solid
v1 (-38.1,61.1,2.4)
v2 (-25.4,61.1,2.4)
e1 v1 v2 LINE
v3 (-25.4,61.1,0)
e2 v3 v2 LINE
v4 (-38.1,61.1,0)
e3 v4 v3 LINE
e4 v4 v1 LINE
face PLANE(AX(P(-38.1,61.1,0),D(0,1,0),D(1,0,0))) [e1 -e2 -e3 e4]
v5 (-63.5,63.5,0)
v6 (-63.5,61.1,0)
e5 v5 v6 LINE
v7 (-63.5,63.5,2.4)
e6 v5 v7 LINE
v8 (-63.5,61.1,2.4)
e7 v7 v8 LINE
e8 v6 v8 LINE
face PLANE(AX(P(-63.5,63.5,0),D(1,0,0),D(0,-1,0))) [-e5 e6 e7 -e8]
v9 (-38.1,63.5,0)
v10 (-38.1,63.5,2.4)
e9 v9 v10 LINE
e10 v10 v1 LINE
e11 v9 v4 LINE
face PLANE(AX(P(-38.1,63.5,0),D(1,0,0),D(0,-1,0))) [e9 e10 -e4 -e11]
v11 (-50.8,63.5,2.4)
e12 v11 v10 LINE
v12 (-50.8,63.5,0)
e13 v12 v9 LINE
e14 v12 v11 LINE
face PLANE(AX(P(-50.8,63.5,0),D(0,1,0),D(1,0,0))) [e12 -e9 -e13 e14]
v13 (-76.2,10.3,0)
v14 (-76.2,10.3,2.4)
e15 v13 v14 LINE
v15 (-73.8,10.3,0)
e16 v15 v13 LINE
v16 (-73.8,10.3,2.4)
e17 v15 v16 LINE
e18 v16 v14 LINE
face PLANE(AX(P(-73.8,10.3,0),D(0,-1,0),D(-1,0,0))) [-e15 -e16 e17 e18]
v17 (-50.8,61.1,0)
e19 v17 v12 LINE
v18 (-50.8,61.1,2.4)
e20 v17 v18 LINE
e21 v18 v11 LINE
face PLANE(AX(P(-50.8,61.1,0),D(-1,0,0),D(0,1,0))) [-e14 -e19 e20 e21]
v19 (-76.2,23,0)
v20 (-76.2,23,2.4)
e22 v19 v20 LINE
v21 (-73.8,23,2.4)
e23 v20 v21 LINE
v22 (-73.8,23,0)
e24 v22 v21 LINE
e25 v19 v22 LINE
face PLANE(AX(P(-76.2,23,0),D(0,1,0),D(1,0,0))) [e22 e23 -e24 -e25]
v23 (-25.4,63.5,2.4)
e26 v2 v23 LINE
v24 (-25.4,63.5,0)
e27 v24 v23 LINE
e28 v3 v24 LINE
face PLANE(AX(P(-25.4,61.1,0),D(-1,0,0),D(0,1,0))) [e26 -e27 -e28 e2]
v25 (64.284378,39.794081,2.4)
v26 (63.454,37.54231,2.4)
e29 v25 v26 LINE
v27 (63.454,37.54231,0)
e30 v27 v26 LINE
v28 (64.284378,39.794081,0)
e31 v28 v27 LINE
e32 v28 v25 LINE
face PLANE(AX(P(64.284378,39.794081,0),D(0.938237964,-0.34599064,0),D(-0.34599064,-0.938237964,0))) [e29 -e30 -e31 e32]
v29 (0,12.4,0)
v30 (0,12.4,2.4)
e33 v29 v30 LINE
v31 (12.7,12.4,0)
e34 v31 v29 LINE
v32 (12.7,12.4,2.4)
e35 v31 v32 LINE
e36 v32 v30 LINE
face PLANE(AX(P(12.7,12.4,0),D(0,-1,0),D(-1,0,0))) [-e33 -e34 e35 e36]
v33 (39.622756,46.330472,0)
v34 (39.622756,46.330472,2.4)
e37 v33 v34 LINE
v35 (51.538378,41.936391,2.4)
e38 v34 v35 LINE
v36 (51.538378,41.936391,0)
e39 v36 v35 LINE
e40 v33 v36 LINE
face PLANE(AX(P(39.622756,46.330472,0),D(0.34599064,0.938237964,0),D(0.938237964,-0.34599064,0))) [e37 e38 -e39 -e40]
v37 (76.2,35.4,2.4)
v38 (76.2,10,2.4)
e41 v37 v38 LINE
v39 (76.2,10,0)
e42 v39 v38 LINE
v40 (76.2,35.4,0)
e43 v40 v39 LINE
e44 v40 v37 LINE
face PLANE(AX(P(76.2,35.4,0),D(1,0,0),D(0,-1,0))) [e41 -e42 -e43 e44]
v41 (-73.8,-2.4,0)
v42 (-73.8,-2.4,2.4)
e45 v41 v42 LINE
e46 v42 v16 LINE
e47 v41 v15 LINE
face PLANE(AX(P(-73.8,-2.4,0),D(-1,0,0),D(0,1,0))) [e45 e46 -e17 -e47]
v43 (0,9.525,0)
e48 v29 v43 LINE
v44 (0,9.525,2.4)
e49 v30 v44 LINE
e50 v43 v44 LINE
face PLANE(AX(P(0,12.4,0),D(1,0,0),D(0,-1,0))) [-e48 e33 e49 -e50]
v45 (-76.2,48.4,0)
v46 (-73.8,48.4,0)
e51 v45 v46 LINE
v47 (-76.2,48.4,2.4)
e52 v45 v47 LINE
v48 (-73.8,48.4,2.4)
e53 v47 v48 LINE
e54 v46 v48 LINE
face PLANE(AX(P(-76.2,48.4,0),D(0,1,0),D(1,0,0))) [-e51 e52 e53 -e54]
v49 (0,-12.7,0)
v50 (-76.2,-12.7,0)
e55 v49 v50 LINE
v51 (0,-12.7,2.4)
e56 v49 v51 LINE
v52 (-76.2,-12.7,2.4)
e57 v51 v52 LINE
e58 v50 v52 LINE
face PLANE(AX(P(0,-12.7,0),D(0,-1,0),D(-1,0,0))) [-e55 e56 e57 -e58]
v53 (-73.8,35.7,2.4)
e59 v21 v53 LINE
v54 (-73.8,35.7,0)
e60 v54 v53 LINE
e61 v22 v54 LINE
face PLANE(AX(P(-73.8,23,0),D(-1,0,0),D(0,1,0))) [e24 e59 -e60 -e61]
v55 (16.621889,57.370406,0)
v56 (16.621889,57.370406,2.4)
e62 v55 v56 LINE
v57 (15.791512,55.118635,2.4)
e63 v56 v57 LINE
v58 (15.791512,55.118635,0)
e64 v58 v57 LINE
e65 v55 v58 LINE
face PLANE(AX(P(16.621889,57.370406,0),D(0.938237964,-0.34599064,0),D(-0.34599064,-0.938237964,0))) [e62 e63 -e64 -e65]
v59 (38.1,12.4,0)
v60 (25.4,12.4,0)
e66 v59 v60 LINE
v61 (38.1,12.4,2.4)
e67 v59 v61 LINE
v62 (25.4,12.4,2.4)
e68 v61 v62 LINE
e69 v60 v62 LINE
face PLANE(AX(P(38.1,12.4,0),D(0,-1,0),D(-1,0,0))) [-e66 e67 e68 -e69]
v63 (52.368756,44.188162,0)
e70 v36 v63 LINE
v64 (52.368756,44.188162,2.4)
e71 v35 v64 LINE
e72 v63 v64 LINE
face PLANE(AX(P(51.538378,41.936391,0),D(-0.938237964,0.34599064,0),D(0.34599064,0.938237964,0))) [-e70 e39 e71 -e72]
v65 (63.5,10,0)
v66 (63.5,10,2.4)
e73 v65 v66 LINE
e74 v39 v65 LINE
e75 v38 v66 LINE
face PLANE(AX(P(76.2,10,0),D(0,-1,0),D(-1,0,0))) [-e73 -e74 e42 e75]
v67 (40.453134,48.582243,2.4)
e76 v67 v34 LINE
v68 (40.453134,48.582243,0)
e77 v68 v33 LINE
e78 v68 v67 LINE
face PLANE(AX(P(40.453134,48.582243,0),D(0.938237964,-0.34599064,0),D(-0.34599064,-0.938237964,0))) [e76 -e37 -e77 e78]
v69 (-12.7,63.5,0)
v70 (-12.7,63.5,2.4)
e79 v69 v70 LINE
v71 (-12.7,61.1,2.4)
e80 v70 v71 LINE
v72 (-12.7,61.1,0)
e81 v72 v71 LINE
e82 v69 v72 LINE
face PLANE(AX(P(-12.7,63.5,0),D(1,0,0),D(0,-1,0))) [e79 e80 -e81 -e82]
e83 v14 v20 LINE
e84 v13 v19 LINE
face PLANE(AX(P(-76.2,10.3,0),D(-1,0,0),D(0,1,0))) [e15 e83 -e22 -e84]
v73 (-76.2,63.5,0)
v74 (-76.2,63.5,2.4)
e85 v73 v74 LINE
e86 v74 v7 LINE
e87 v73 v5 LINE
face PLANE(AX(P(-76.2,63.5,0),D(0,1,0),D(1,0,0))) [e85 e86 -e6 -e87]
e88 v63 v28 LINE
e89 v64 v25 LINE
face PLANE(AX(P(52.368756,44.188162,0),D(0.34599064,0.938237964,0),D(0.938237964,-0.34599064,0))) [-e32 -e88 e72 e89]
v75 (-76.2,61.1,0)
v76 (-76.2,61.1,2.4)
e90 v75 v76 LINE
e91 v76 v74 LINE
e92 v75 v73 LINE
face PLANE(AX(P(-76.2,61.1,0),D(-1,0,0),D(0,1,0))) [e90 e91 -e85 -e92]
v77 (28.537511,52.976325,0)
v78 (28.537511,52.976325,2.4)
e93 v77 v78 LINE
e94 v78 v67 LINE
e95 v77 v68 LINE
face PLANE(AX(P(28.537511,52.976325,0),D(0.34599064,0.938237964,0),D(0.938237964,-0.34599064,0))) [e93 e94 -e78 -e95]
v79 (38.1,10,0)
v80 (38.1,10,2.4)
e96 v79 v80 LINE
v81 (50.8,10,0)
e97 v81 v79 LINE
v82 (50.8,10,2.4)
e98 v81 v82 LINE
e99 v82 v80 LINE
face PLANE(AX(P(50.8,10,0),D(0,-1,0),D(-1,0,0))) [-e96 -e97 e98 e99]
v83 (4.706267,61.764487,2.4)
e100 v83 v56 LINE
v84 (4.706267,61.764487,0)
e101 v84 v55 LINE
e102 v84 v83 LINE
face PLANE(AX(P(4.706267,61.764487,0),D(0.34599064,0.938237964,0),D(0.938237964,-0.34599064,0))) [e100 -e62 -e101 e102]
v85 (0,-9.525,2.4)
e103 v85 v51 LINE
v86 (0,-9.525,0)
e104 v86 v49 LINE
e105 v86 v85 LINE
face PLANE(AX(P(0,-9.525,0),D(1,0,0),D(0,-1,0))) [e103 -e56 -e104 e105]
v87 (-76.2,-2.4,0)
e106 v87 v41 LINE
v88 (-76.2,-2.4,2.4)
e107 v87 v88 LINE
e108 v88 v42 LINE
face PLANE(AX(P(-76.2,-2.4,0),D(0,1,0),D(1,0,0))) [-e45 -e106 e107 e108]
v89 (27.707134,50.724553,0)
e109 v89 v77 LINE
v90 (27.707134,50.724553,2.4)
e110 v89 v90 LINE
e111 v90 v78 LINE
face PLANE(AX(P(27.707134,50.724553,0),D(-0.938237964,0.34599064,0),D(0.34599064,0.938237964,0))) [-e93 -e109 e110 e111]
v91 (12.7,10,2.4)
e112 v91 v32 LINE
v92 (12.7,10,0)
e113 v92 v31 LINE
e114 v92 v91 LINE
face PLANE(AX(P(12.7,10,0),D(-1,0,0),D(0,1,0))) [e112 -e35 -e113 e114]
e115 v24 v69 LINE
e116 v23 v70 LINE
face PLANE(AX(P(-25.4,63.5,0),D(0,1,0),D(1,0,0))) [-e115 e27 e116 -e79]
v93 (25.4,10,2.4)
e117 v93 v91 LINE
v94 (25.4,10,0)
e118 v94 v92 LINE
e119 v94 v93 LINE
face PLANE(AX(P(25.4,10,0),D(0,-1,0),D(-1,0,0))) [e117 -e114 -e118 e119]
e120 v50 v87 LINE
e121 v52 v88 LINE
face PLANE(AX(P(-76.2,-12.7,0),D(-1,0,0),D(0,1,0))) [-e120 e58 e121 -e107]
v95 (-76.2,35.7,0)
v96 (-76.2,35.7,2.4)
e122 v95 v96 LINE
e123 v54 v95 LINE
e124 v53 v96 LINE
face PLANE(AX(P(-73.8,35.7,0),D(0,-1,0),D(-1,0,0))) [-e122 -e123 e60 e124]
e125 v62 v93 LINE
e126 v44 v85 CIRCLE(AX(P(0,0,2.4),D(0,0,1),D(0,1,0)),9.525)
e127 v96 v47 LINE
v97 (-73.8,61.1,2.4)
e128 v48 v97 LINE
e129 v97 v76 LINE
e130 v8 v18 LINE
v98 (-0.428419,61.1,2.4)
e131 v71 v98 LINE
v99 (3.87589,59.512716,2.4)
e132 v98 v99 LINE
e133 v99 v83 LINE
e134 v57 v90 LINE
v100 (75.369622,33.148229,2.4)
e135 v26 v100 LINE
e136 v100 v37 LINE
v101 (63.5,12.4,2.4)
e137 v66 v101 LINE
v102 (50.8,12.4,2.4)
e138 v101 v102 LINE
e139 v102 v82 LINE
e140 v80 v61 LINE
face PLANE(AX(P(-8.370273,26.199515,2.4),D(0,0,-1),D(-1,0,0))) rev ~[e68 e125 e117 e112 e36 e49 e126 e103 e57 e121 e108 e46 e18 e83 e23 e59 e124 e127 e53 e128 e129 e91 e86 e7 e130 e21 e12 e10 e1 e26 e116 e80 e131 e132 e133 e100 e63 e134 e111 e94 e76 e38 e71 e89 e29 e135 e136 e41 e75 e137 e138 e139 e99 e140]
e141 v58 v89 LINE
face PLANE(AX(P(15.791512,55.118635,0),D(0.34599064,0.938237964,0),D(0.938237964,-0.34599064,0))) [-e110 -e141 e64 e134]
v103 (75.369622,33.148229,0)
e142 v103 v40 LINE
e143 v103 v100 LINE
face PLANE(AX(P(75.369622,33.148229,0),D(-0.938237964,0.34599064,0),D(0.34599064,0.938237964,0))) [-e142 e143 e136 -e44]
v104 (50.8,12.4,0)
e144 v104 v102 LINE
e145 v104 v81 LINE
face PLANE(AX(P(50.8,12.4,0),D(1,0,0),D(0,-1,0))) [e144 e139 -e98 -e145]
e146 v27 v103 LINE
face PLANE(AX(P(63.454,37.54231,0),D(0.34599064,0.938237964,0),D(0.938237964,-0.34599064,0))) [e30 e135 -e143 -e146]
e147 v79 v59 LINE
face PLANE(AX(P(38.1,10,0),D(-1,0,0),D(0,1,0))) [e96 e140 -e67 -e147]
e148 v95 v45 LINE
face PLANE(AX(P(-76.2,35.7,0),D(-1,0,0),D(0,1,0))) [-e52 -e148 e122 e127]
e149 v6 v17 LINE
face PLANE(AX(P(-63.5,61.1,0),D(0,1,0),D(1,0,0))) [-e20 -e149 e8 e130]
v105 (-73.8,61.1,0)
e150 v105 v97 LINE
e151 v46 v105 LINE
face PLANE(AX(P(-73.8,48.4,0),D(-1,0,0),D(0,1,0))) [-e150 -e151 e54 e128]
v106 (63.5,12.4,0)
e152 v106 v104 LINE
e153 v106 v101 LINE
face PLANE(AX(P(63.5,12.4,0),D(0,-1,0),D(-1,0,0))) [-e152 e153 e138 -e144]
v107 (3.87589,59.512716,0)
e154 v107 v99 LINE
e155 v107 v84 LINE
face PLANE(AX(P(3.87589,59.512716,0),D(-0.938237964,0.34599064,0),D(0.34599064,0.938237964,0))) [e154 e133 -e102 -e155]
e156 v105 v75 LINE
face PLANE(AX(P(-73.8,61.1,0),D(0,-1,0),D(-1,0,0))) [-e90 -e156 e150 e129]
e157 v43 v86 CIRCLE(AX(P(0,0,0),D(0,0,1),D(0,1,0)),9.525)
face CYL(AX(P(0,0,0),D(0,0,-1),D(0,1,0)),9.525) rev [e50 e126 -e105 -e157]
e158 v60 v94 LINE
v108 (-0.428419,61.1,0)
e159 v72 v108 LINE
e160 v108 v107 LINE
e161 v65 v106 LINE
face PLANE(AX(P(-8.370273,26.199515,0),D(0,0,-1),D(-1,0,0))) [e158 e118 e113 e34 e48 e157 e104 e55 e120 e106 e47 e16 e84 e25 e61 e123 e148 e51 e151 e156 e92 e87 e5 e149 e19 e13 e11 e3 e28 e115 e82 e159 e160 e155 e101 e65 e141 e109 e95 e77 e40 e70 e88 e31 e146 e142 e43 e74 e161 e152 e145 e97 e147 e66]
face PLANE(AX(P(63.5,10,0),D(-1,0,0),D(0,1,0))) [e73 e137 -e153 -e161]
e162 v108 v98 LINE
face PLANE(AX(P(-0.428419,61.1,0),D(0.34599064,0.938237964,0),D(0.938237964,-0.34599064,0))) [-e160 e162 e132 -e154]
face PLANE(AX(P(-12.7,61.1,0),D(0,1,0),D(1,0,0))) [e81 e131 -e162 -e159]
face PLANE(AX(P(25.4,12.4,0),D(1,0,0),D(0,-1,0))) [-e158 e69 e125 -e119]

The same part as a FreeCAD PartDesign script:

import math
import FreeCAD as App
import Part
import Sketcher

V = App.Vector
Q = App.Units.Quantity

doc = App.newDocument("Part")
body = doc.addObject("PartDesign::Body", "Body")

# Sketch on XY plane
sketch1 = body.newObject("Sketcher::SketchObject", "Sketch")
sketch1.AttachmentSupport = (doc.getObject("XY_Plane"), [""])
sketch1.MapMode = "FlatFace"
sketch1.addGeometry([
    Part.LineSegment(V(-76.2, -2.4, 0), V(-76.2, -12.7, 0)),  # 0
    Part.LineSegment(V(-76.2, -12.7, 0), V(0, -12.7, 0)),  # 1
    Part.LineSegment(V(0, -12.7, 0), V(0, -9.5, 0)),  # 2
    Part.ArcOfCircle(Part.Circle(V(0, 0, 0), V(0, 0, 1), 9.5), math.radians(90), math.radians(270)),  # 3
    Part.LineSegment(V(0, 9.5, 0), V(0, 12.4, 0)),  # 4
    Part.LineSegment(V(0, 12.4, 0), V(12.7, 12.4, 0)),  # 5
    Part.LineSegment(V(12.7, 12.4, 0), V(12.7, 10, 0)),  # 6
    Part.LineSegment(V(12.7, 10, 0), V(25.4, 10, 0)),  # 7
    Part.LineSegment(V(25.4, 10, 0), V(25.4, 12.4, 0)),  # 8
    Part.LineSegment(V(25.4, 12.4, 0), V(38.1, 12.4, 0)),  # 9
    Part.LineSegment(V(38.1, 12.4, 0), V(38.1, 10, 0)),  # 10
    Part.LineSegment(V(38.1, 10, 0), V(50.8, 10, 0)),  # 11
    Part.LineSegment(V(50.8, 10, 0), V(50.8, 12.4, 0)),  # 12
    Part.LineSegment(V(50.8, 12.4, 0), V(63.5, 12.4, 0)),  # 13
    Part.LineSegment(V(63.5, 12.4, 0), V(63.5, 10, 0)),  # 14
    Part.LineSegment(V(63.5, 10, 0), V(76.2, 10, 0)),  # 15
    Part.LineSegment(V(76.2, 10, 0), V(76.2, 35.4, 0)),  # 16
    Part.LineSegment(V(76.2, 35.4, 0), V(75.4, 33.1, 0)),  # 17
    Part.LineSegment(V(75.4, 33.1, 0), V(63.5, 37.5, 0)),  # 18
    Part.LineSegment(V(63.5, 37.5, 0), V(64.3, 39.8, 0)),  # 19
    Part.LineSegment(V(64.3, 39.8, 0), V(52.4, 44.2, 0)),  # 20
    Part.LineSegment(V(52.4, 44.2, 0), V(51.5, 41.9, 0)),  # 21
    Part.LineSegment(V(51.5, 41.9, 0), V(39.6, 46.3, 0)),  # 22
    Part.LineSegment(V(39.6, 46.3, 0), V(40.5, 48.6, 0)),  # 23
    Part.LineSegment(V(40.5, 48.6, 0), V(28.5, 53, 0)),  # 24
    Part.LineSegment(V(28.5, 53, 0), V(27.7, 50.7, 0)),  # 25
    Part.LineSegment(V(27.7, 50.7, 0), V(15.8, 55.1, 0)),  # 26
    Part.LineSegment(V(15.8, 55.1, 0), V(16.6, 57.4, 0)),  # 27
    Part.LineSegment(V(16.6, 57.4, 0), V(4.7, 61.8, 0)),  # 28
    Part.LineSegment(V(4.7, 61.8, 0), V(3.9, 59.5, 0)),  # 29
    Part.LineSegment(V(3.9, 59.5, 0), V(-0.4, 61.1, 0)),  # 30
    Part.LineSegment(V(-0.4, 61.1, 0), V(-12.7, 61.1, 0)),  # 31
    Part.LineSegment(V(-12.7, 61.1, 0), V(-12.7, 63.5, 0)),  # 32
    Part.LineSegment(V(-12.7, 63.5, 0), V(-25.4, 63.5, 0)),  # 33
    Part.LineSegment(V(-25.4, 63.5, 0), V(-25.4, 61.1, 0)),  # 34
    Part.LineSegment(V(-25.4, 61.1, 0), V(-38.1, 61.1, 0)),  # 35
    Part.LineSegment(V(-38.1, 61.1, 0), V(-38.1, 63.5, 0)),  # 36
    Part.LineSegment(V(-38.1, 63.5, 0), V(-50.8, 63.5, 0)),  # 37
    Part.LineSegment(V(-50.8, 63.5, 0), V(-50.8, 61.1, 0)),  # 38
    Part.LineSegment(V(-50.8, 61.1, 0), V(-63.5, 61.1, 0)),  # 39
    Part.LineSegment(V(-63.5, 61.1, 0), V(-63.5, 63.5, 0)),  # 40
    Part.LineSegment(V(-63.5, 63.5, 0), V(-76.2, 63.5, 0)),  # 41
    Part.LineSegment(V(-76.2, 63.5, 0), V(-76.2, 61.1, 0)),  # 42
    Part.LineSegment(V(-76.2, 61.1, 0), V(-73.8, 61.1, 0)),  # 43
    Part.LineSegment(V(-73.8, 61.1, 0), V(-73.8, 48.4, 0)),  # 44
    Part.LineSegment(V(-73.8, 48.4, 0), V(-76.2, 48.4, 0)),  # 45
    Part.LineSegment(V(-76.2, 48.4, 0), V(-76.2, 35.7, 0)),  # 46
    Part.LineSegment(V(-76.2, 35.7, 0), V(-73.8, 35.7, 0)),  # 47
    Part.LineSegment(V(-73.8, 35.7, 0), V(-73.8, 23, 0)),  # 48
    Part.LineSegment(V(-73.8, 23, 0), V(-76.2, 23, 0)),  # 49
    Part.LineSegment(V(-76.2, 23, 0), V(-76.2, 10.3, 0)),  # 50
    Part.LineSegment(V(-76.2, 10.3, 0), V(-73.8, 10.3, 0)),  # 51
    Part.LineSegment(V(-73.8, 10.3, 0), V(-73.8, -2.4, 0)),  # 52
    Part.LineSegment(V(-73.8, -2.4, 0), V(-76.2, -2.4, 0)),  # 53
], False)
sketch1.addConstraint([
    Sketcher.Constraint("Coincident", 0, 2, 1, 1),
    Sketcher.Constraint("Coincident", 1, 2, 2, 1),
    Sketcher.Constraint("Coincident", 2, 2, 3, 2),
    Sketcher.Constraint("Coincident", 3, 1, 4, 1),
    Sketcher.Constraint("Coincident", 4, 2, 5, 1),
    Sketcher.Constraint("Coincident", 5, 2, 6, 1),
    Sketcher.Constraint("Coincident", 6, 2, 7, 1),
    Sketcher.Constraint("Coincident", 7, 2, 8, 1),
    Sketcher.Constraint("Coincident", 8, 2, 9, 1),
    Sketcher.Constraint("Coincident", 9, 2, 10, 1),
    Sketcher.Constraint("Coincident", 10, 2, 11, 1),
    Sketcher.Constraint("Coincident", 11, 2, 12, 1),
    Sketcher.Constraint("Coincident", 12, 2, 13, 1),
    Sketcher.Constraint("Coincident", 13, 2, 14, 1),
    Sketcher.Constraint("Coincident", 14, 2, 15, 1),
    Sketcher.Constraint("Coincident", 15, 2, 16, 1),
    Sketcher.Constraint("Coincident", 16, 2, 17, 1),
    Sketcher.Constraint("Coincident", 17, 2, 18, 1),
    Sketcher.Constraint("Coincident", 18, 2, 19, 1),
    Sketcher.Constraint("Coincident", 19, 2, 20, 1),
    Sketcher.Constraint("Coincident", 20, 2, 21, 1),
    Sketcher.Constraint("Coincident", 21, 2, 22, 1),
    Sketcher.Constraint("Coincident", 22, 2, 23, 1),
    Sketcher.Constraint("Coincident", 23, 2, 24, 1),
    Sketcher.Constraint("Coincident", 24, 2, 25, 1),
    Sketcher.Constraint("Coincident", 25, 2, 26, 1),
    Sketcher.Constraint("Coincident", 26, 2, 27, 1),
    Sketcher.Constraint("Coincident", 27, 2, 28, 1),
    Sketcher.Constraint("Coincident", 28, 2, 29, 1),
    Sketcher.Constraint("Coincident", 29, 2, 30, 1),
    Sketcher.Constraint("Coincident", 30, 2, 31, 1),
    Sketcher.Constraint("Coincident", 31, 2, 32, 1),
    Sketcher.Constraint("Coincident", 32, 2, 33, 1),
    Sketcher.Constraint("Coincident", 33, 2, 34, 1),
    Sketcher.Constraint("Coincident", 34, 2, 35, 1),
    Sketcher.Constraint("Coincident", 35, 2, 36, 1),
    Sketcher.Constraint("Coincident", 36, 2, 37, 1),
    Sketcher.Constraint("Coincident", 37, 2, 38, 1),
    Sketcher.Constraint("Coincident", 38, 2, 39, 1),
    Sketcher.Constraint("Coincident", 39, 2, 40, 1),
    Sketcher.Constraint("Coincident", 40, 2, 41, 1),
    Sketcher.Constraint("Coincident", 41, 2, 42, 1),
    Sketcher.Constraint("Coincident", 42, 2, 43, 1),
    Sketcher.Constraint("Coincident", 43, 2, 44, 1),
    Sketcher.Constraint("Coincident", 44, 2, 45, 1),
    Sketcher.Constraint("Coincident", 45, 2, 46, 1),
    Sketcher.Constraint("Coincident", 46, 2, 47, 1),
    Sketcher.Constraint("Coincident", 47, 2, 48, 1),
    Sketcher.Constraint("Coincident", 48, 2, 49, 1),
    Sketcher.Constraint("Coincident", 49, 2, 50, 1),
    Sketcher.Constraint("Coincident", 50, 2, 51, 1),
    Sketcher.Constraint("Coincident", 51, 2, 52, 1),
    Sketcher.Constraint("Coincident", 52, 2, 53, 1),
    Sketcher.Constraint("Coincident", 53, 2, 0, 1),
    Sketcher.Constraint("Vertical", 0),
    Sketcher.Constraint("Horizontal", 1),
    Sketcher.Constraint("Vertical", 2),
    Sketcher.Constraint("Vertical", 4),
    Sketcher.Constraint("Horizontal", 5),
    Sketcher.Constraint("Vertical", 6),
    Sketcher.Constraint("Horizontal", 7),
    Sketcher.Constraint("Vertical", 8),
    Sketcher.Constraint("Horizontal", 9),
    Sketcher.Constraint("Vertical", 10),
    Sketcher.Constraint("Horizontal", 11),
    Sketcher.Constraint("Vertical", 12),
    Sketcher.Constraint("Horizontal", 13),
    Sketcher.Constraint("Vertical", 14),
    Sketcher.Constraint("Horizontal", 15),
    Sketcher.Constraint("Vertical", 16),
    Sketcher.Constraint("Horizontal", 31),
    Sketcher.Constraint("Vertical", 32),
    Sketcher.Constraint("Horizontal", 33),
    Sketcher.Constraint("Vertical", 34),
    Sketcher.Constraint("Horizontal", 35),
    Sketcher.Constraint("Vertical", 36),
    Sketcher.Constraint("Horizontal", 37),
    Sketcher.Constraint("Vertical", 38),
    Sketcher.Constraint("Horizontal", 39),
    Sketcher.Constraint("Vertical", 40),
    Sketcher.Constraint("Horizontal", 41),
    Sketcher.Constraint("Vertical", 42),
    Sketcher.Constraint("Horizontal", 43),
    Sketcher.Constraint("Vertical", 44),
    Sketcher.Constraint("Horizontal", 45),
    Sketcher.Constraint("Vertical", 46),
    Sketcher.Constraint("Horizontal", 47),
    Sketcher.Constraint("Vertical", 48),
    Sketcher.Constraint("Horizontal", 49),
    Sketcher.Constraint("Vertical", 50),
    Sketcher.Constraint("Horizontal", 51),
    Sketcher.Constraint("Vertical", 52),
    Sketcher.Constraint("Horizontal", 53),
    Sketcher.Constraint("Coincident", 3, 3, -1, 1),
    Sketcher.Constraint("PointOnObject", 1, 2, -2),
    Sketcher.Constraint("PointOnObject", 3, 1, -2),
    Sketcher.Constraint("Perpendicular", 17, 18),
    Sketcher.Constraint("Perpendicular", 18, 19),
    Sketcher.Constraint("Perpendicular", 19, 20),
    Sketcher.Constraint("Perpendicular", 20, 21),
    Sketcher.Constraint("Perpendicular", 21, 22),
    Sketcher.Constraint("Perpendicular", 22, 23),
    Sketcher.Constraint("Perpendicular", 23, 24),
    Sketcher.Constraint("Perpendicular", 24, 25),
    Sketcher.Constraint("Perpendicular", 25, 26),
    Sketcher.Constraint("Perpendicular", 26, 27),
    Sketcher.Constraint("Perpendicular", 27, 28),
    Sketcher.Constraint("Perpendicular", 28, 29),
    Sketcher.Constraint("Perpendicular", 29, 30),
    Sketcher.Constraint("Horizontal", 5, 2, 8, 2),
    Sketcher.Constraint("Horizontal", 7, 2, 10, 2),
    Sketcher.Constraint("Horizontal", 9, 2, 12, 2),
    Sketcher.Constraint("Horizontal", 11, 2, 14, 2),
    Sketcher.Constraint("Horizontal", 31, 2, 34, 2),
    Sketcher.Constraint("Horizontal", 33, 2, 36, 2),
    Sketcher.Constraint("Horizontal", 35, 2, 38, 2),
    Sketcher.Constraint("Horizontal", 37, 2, 40, 2),
    Sketcher.Constraint("Horizontal", 39, 2, 42, 2),
    Sketcher.Constraint("Vertical", 0, 2, 41, 2),
    Sketcher.Constraint("Vertical", 42, 2, 45, 2),
    Sketcher.Constraint("Vertical", 44, 2, 47, 2),
    Sketcher.Constraint("Vertical", 46, 2, 49, 2),
    Sketcher.Constraint("Vertical", 48, 2, 51, 2),
    Sketcher.Constraint("Equal", 5, 7),
    Sketcher.Constraint("Equal", 7, 9),
    Sketcher.Constraint("Equal", 9, 11),
    Sketcher.Constraint("Equal", 11, 13),
    Sketcher.Constraint("Equal", 13, 15),
    Sketcher.Constraint("Equal", 15, 33),
    Sketcher.Constraint("Equal", 33, 35),
    Sketcher.Constraint("Equal", 35, 37),
    Sketcher.Constraint("Equal", 37, 39),
    Sketcher.Constraint("Equal", 39, 41),
    Sketcher.Constraint("Equal", 53, 6),
    Sketcher.Constraint("Equal", 14, 32),
    Sketcher.Constraint("Equal", 41, 44),
    Sketcher.Constraint("Equal", 44, 46),
    Sketcher.Constraint("Equal", 46, 48),
    Sketcher.Constraint("Equal", 48, 50),
    Sketcher.Constraint("Equal", 50, 52),
    Sketcher.Constraint("Equal", 17, 19),
    Sketcher.Constraint("Equal", 18, 20),
    Sketcher.Constraint("Equal", 19, 21),
    Sketcher.Constraint("Equal", 20, 22),
    Sketcher.Constraint("Equal", 21, 23),
    Sketcher.Constraint("Equal", 22, 24),
    Sketcher.Constraint("Equal", 23, 25),
    Sketcher.Constraint("Equal", 24, 26),
    Sketcher.Constraint("Equal", 25, 27),
    Sketcher.Constraint("Equal", 26, 28),
    Sketcher.Constraint("Equal", 27, 29),
    Sketcher.Constraint("DistanceX", 1, 1, 1, 2, Q("3 in")),
    Sketcher.Constraint("DistanceY", 16, 1, 16, 2, Q("1 in")),
    Sketcher.Constraint("DistanceX", 5, 1, 5, 2, Q("0.5 in")),
    Sketcher.Constraint("Radius", 3, Q("0.375 in")),
    Sketcher.Constraint("Distance", 18, Q("0.5 in")),
    Sketcher.Constraint("DistanceY", 0, 2, -1, 1, Q("0.5 in")),
    Sketcher.Constraint("DistanceY", -1, 1, 32, 2, Q("2.5 in")),
    Sketcher.Constraint("DistanceX", 43, 1, 43, 2, Q("2.4 mm")),
    Sketcher.Constraint("DistanceY", 4, 1, 4, 2, Q("2.875 mm")),
    Sketcher.Constraint("Distance", 17, Q("2.4 mm")),
    Sketcher.Constraint("DistanceX", 31, 2, 31, 1, Q("12.271581 mm")),
])
pad1 = body.newObject("PartDesign::Pad", "Pad")
pad1.Profile = sketch1
pad1.Length = 2.4

doc.recompute()
